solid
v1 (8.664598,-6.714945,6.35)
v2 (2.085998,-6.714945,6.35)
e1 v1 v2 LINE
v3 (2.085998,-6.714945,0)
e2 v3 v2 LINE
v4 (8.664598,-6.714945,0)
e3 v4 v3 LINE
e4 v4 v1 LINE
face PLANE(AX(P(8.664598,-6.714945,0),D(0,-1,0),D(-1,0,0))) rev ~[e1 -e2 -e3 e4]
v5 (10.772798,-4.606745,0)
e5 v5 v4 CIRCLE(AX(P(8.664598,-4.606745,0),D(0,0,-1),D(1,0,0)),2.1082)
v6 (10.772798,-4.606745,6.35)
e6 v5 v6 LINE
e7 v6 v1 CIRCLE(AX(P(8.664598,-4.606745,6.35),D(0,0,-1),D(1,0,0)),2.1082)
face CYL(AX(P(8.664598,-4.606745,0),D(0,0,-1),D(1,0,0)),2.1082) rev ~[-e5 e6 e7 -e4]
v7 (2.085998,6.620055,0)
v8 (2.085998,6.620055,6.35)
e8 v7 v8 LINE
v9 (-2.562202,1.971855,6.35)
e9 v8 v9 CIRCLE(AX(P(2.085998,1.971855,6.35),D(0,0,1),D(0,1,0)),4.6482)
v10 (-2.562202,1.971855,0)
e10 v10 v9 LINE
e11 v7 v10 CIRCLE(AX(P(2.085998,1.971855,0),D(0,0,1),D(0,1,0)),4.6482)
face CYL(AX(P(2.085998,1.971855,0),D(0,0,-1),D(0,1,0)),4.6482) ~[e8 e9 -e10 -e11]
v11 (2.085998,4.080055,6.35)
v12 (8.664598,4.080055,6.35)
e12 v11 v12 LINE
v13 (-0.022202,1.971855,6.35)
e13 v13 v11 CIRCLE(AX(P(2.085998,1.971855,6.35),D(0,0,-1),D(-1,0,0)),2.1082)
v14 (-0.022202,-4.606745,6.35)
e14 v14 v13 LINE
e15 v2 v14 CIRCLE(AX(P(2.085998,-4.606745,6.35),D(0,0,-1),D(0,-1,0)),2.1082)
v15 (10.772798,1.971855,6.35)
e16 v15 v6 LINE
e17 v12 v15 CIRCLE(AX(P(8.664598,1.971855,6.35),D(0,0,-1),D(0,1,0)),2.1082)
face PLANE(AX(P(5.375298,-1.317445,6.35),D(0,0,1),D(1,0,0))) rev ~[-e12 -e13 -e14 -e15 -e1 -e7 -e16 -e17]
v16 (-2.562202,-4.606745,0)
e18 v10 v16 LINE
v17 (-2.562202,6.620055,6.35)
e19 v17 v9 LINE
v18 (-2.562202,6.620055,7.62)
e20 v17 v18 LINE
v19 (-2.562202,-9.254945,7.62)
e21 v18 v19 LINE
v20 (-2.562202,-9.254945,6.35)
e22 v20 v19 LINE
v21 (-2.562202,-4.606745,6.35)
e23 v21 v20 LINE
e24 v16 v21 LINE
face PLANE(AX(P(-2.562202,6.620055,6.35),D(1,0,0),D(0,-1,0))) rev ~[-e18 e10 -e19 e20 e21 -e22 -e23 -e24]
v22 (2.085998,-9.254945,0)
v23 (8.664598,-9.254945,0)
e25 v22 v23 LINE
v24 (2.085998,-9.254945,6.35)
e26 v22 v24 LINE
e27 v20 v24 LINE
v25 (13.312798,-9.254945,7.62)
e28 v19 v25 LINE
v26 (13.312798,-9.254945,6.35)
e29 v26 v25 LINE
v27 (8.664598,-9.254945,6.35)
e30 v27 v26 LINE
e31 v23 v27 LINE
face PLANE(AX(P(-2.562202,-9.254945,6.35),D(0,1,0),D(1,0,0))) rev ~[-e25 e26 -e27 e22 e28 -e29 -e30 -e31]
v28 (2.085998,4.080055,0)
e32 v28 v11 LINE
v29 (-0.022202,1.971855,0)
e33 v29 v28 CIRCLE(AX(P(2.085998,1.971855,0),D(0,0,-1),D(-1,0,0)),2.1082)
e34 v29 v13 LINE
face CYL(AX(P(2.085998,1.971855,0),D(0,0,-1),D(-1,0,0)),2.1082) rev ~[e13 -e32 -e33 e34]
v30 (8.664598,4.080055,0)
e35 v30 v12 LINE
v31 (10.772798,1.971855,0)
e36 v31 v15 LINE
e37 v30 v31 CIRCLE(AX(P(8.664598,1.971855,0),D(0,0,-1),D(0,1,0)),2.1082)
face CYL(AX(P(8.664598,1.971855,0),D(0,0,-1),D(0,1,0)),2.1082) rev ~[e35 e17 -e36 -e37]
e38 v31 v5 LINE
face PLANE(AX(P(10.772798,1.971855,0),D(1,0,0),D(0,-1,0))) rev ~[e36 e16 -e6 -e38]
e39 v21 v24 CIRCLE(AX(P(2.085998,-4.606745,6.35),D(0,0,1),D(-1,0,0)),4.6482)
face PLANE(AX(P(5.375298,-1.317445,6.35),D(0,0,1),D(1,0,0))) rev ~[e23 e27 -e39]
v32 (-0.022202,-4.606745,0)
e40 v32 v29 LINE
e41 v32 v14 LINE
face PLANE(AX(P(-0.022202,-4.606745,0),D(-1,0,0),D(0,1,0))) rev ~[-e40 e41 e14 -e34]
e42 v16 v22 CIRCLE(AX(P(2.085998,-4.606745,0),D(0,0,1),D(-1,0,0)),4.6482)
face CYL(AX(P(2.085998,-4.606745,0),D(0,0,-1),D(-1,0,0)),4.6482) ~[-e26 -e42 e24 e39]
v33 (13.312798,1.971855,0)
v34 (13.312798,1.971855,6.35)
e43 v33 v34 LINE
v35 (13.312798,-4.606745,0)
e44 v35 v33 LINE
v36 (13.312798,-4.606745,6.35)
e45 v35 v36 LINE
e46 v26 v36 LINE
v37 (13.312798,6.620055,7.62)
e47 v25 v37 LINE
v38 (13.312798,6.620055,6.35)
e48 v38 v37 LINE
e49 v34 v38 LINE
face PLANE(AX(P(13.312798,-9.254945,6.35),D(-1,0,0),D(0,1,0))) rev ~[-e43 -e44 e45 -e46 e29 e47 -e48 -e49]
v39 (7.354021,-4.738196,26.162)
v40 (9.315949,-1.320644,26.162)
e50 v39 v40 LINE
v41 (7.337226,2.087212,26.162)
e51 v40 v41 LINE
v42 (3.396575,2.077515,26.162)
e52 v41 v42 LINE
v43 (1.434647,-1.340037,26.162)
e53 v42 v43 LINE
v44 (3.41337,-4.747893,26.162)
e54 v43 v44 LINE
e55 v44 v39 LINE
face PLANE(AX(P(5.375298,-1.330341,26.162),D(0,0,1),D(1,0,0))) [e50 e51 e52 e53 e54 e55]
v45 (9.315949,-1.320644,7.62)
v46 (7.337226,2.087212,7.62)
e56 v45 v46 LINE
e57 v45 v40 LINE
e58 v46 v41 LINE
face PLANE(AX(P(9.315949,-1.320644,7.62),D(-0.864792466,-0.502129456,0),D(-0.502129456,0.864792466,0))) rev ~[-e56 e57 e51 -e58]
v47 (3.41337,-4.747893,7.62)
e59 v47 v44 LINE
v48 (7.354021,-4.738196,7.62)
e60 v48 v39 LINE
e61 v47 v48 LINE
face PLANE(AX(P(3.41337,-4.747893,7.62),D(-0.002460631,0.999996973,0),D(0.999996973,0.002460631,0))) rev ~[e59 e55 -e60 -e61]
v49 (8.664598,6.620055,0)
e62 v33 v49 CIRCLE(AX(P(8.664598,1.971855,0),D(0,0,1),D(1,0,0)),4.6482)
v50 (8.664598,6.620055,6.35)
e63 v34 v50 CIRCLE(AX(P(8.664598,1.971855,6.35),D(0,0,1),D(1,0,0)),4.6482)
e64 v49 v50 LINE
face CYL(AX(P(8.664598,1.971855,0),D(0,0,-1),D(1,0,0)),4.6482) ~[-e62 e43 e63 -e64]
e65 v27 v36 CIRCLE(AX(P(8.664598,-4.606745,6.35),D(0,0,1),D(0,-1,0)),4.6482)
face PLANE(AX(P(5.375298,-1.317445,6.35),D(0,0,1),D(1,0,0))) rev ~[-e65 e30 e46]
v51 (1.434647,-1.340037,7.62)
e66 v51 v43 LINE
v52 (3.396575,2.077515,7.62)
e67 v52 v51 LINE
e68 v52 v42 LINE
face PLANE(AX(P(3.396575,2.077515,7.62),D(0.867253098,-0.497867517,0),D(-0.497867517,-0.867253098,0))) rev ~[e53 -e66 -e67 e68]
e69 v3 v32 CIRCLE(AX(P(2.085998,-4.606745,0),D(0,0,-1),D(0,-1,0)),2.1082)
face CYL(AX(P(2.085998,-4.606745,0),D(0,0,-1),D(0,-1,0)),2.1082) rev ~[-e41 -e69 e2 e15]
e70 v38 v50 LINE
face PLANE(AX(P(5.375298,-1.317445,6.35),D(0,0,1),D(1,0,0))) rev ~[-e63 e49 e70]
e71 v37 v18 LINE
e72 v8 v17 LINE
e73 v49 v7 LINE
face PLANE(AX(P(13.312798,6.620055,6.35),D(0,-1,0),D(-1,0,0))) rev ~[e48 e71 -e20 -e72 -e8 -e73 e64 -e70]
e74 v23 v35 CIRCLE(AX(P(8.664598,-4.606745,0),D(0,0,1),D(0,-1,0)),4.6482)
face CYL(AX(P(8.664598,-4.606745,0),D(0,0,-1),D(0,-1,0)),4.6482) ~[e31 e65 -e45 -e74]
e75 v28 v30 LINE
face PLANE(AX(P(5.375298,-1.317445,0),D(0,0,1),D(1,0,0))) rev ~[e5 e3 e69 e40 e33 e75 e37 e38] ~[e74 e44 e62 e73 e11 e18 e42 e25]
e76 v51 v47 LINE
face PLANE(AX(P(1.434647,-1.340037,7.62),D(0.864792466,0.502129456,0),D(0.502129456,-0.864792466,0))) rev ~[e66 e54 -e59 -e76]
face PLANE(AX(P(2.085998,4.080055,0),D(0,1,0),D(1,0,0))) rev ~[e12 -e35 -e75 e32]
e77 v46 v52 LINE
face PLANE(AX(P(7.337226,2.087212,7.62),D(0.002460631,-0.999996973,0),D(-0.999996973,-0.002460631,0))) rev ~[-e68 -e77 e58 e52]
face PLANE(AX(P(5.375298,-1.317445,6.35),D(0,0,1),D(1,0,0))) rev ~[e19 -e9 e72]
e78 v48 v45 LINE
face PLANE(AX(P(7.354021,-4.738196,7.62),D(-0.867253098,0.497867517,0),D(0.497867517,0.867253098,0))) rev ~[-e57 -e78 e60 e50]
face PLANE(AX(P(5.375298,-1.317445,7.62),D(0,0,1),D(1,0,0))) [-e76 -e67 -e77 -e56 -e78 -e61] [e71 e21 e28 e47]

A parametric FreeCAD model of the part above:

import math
import FreeCAD as App
import Part
import Sketcher
from FreeCAD import Vector
Q = App.Units.Quantity

doc = App.newDocument("Part")
body = doc.addObject("PartDesign::Body", "Body")

sketch1 = body.newObject("Sketcher::SketchObject", "Sketch")
sketch1.AttachmentSupport = (doc.getObject("XY_Plane"), [""])
sketch1.MapMode = "FlatFace"
sketch1.addGeometry([
    Part.LineSegment(Vector(8.7, 6.6, 0), Vector(2.1, 6.6, 0)),
    Part.ArcOfCircle(Part.Circle(Vector(2.1, 2, 0), Vector(0, 0, 1), 4.6), math.radians(90), math.radians(180)),
    Part.LineSegment(Vector(-2.6, 2, 0), Vector(-2.6, -4.6, 0)),
    Part.ArcOfCircle(Part.Circle(Vector(2.1, -4.6, 0), Vector(0, 0, 1), 4.6), math.radians(180), math.radians(270)),
    Part.LineSegment(Vector(2.1, -9.3, 0), Vector(8.7, -9.3, 0)),
    Part.ArcOfCircle(Part.Circle(Vector(8.7, -4.6, 0), Vector(0, 0, 1), 4.6), math.radians(-90), math.radians(0)),
    Part.LineSegment(Vector(13.3, -4.6, 0), Vector(13.3, 2, 0)),
    Part.ArcOfCircle(Part.Circle(Vector(8.7, 2, 0), Vector(0, 0, 1), 4.6), math.radians(0), math.radians(90)),
    Part.LineSegment(Vector(0, -4.6, 0), Vector(0, 2, 0)),
    Part.ArcOfCircle(Part.Circle(Vector(2.1, 2, 0), Vector(0, 0, 1), 2.1), math.radians(90), math.radians(180)),
    Part.LineSegment(Vector(2.1, 4.1, 0), Vector(8.7, 4.1, 0)),
    Part.ArcOfCircle(Part.Circle(Vector(8.7, 2, 0), Vector(0, 0, 1), 2.1), math.radians(0), math.radians(90)),
    Part.LineSegment(Vector(10.8, 2, 0), Vector(10.8, -4.6, 0)),
    Part.ArcOfCircle(Part.Circle(Vector(8.7, -4.6, 0), Vector(0, 0, 1), 2.1), math.radians(-90), math.radians(0)),
    Part.LineSegment(Vector(8.7, -6.7, 0), Vector(2.1, -6.7, 0)),
    Part.ArcOfCircle(Part.Circle(Vector(2.1, -4.6, 0), Vector(0, 0, 1), 2.1), math.radians(180), math.radians(270)),
], False)
sketch1.addConstraint([
    Sketcher.Constraint("Tangent", 0, 2, 1, 1),
    Sketcher.Constraint("Tangent", 1, 2, 2, 1),
    Sketcher.Constraint("Tangent", 2, 2, 3, 1),
    Sketcher.Constraint("Tangent", 3, 2, 4, 1),
    Sketcher.Constraint("Tangent", 4, 2, 5, 1),
    Sketcher.Constraint("Tangent", 5, 2, 6, 1),
    Sketcher.Constraint("Tangent", 6, 2, 7, 1),
    Sketcher.Constraint("Tangent", 7, 2, 0, 1),
    Sketcher.Constraint("Tangent", 8, 2, 9, 2),
    Sketcher.Constraint("Tangent", 9, 1, 10, 1),
    Sketcher.Constraint("Tangent", 10, 2, 11, 2),
    Sketcher.Constraint("Tangent", 11, 1, 12, 1),
    Sketcher.Constraint("Tangent", 12, 2, 13, 2),
    Sketcher.Constraint("Tangent", 13, 1, 14, 1),
    Sketcher.Constraint("Tangent", 14, 2, 15, 2),
    Sketcher.Constraint("Tangent", 15, 1, 8, 1),
    Sketcher.Constraint("Horizontal", 0),
    Sketcher.Constraint("Vertical", 2),
    Sketcher.Constraint("Horizontal", 4),
    Sketcher.Constraint("Vertical", 6),
    Sketcher.Constraint("Vertical", 8),
    Sketcher.Constraint("Horizontal", 10),
    Sketcher.Constraint("Vertical", 12),
    Sketcher.Constraint("Horizontal", 14),
    Sketcher.Constraint("Coincident", 9, 3, 1, 3),
    Sketcher.Constraint("Coincident", 11, 3, 7, 3),
    Sketcher.Constraint("Coincident", 13, 3, 5, 3),
    Sketcher.Constraint("Equal", 1, 3),
    Sketcher.Constraint("Equal", 3, 5),
    Sketcher.Constraint("Equal", 5, 7),
    Sketcher.Constraint("Equal", 13, 15),
    Sketcher.Constraint("Equal", 14, 2),
    Sketcher.Constraint("Radius", 1, Q("0.183 in")),
    Sketcher.Constraint("Radius", 9, Q("0.083 in")),
    Sketcher.Constraint("DistanceX", 0, 2, 0, 1, Q("0.259 in")),
    Sketcher.Constraint("DistanceX", -1, 1, 1, 3, 2.085998),
    Sketcher.Constraint("DistanceY", -1, 1, 1, 3, 1.971855),
])
pad1 = body.newObject("PartDesign::Pad", "Pad")
pad1.Profile = sketch1
pad1.Length = Q("0.25 in")

sketch2 = body.newObject("Sketcher::SketchObject", "Sketch001")
sketch2.AttachmentSupport = (doc.getObject("XY_Plane"), [""])
sketch2.MapMode = "FlatFace"
sketch2.AttachmentOffset = App.Placement(Vector(0, 0, 0.25 * 25.4), App.Rotation())
sketch2.addGeometry([
    Part.LineSegment(Vector(-3, 7, 0), Vector(-3, -9, 0)),
    Part.LineSegment(Vector(-3, -9, 0), Vector(13, -9, 0)),
    Part.LineSegment(Vector(13, -9, 0), Vector(13, 7, 0)),
    Part.LineSegment(Vector(13, 7, 0), Vector(-3, 7, 0)),
], False)
sketch2.addConstraint([
    Sketcher.Constraint("Coincident", 0, 2, 1, 1),
    Sketcher.Constraint("Coincident", 1, 2, 2, 1),
    Sketcher.Constraint("Coincident", 2, 2, 3, 1),
    Sketcher.Constraint("Coincident", 3, 2, 0, 1),
    Sketcher.Constraint("Vertical", 0),
    Sketcher.Constraint("Horizontal", 1),
    Sketcher.Constraint("Vertical", 2),
    Sketcher.Constraint("Horizontal", 3),
    Sketcher.Constraint("Equal", 3, 0),
    Sketcher.Constraint("DistanceX", 1, 1, 1, 2, Q("0.625 in")),
    Sketcher.Constraint("DistanceX", 0, 2, -1, 1, 2.562202),
    Sketcher.Constraint("DistanceY", 0, 2, -1, 1, 9.254945),
])
pad2 = body.newObject("PartDesign::Pad", "Pad001")
pad2.Profile = sketch2
pad2.Length = Q("0.05 in")

sketch3 = body.newObject("Sketcher::SketchObject", "Sketch002")
sketch3.AttachmentSupport = (doc.getObject("XY_Plane"), [""])
sketch3.MapMode = "FlatFace"
sketch3.AttachmentOffset = App.Placement(Vector(0, 0, 0.3 * 25.4), App.Rotation())
sketch3.addGeometry([
    Part.LineSegment(Vector(3.4, 2.1, 0), Vector(1.4, -1.3, 0)),
    Part.LineSegment(Vector(1.4, -1.3, 0), Vector(3.4, -4.7, 0)),
    Part.LineSegment(Vector(3.4, -4.7, 0), Vector(7.4, -4.7, 0)),
    Part.LineSegment(Vector(7.4, -4.7, 0), Vector(9.3, -1.3, 0)),
    Part.LineSegment(Vector(9.3, -1.3, 0), Vector(7.3, 2.1, 0)),
    Part.LineSegment(Vector(7.3, 2.1, 0), Vector(3.4, 2.1, 0)),
], False)
sketch3.addConstraint([
    Sketcher.Constraint("Coincident", 0, 2, 1, 1),
    Sketcher.Constraint("Coincident", 1, 2, 2, 1),
    Sketcher.Constraint("Coincident", 2, 2, 3, 1),
    Sketcher.Constraint("Coincident", 3, 2, 4, 1),
    Sketcher.Constraint("Coincident", 4, 2, 5, 1),
    Sketcher.Constraint("Coincident", 5, 2, 0, 1),
    Sketcher.Constraint("Parallel", 0, 3),
    Sketcher.Constraint("Parallel", 1, 4),
    Sketcher.Constraint("Parallel", 2, 5),
    Sketcher.Constraint("Equal", 0, 1),
    Sketcher.Constraint("Equal", 1, 2),
    Sketcher.Constraint("Equal", 2, 3),
    Sketcher.Constraint("DistanceX", -1, 1, 1, 2, 3.41337),
    Sketcher.Constraint("DistanceX", -1, 1, 2, 2, 7.354021),
    Sketcher.Constraint("DistanceX", -1, 1, 3, 2, 9.315949),
    Sketcher.Constraint("DistanceY", -1, 1, 4, 2, 2.087212),
    Sketcher.Constraint("DistanceY", 2, 2, 0, 2, 3.398159),
    Sketcher.Constraint("DistanceY", 1, 2, 3, 2, 3.427249),
])
pad3 = body.newObject("PartDesign::Pad", "Pad002")
pad3.Profile = sketch3
pad3.Length = Q("0.73 in")

doc.recompute()
